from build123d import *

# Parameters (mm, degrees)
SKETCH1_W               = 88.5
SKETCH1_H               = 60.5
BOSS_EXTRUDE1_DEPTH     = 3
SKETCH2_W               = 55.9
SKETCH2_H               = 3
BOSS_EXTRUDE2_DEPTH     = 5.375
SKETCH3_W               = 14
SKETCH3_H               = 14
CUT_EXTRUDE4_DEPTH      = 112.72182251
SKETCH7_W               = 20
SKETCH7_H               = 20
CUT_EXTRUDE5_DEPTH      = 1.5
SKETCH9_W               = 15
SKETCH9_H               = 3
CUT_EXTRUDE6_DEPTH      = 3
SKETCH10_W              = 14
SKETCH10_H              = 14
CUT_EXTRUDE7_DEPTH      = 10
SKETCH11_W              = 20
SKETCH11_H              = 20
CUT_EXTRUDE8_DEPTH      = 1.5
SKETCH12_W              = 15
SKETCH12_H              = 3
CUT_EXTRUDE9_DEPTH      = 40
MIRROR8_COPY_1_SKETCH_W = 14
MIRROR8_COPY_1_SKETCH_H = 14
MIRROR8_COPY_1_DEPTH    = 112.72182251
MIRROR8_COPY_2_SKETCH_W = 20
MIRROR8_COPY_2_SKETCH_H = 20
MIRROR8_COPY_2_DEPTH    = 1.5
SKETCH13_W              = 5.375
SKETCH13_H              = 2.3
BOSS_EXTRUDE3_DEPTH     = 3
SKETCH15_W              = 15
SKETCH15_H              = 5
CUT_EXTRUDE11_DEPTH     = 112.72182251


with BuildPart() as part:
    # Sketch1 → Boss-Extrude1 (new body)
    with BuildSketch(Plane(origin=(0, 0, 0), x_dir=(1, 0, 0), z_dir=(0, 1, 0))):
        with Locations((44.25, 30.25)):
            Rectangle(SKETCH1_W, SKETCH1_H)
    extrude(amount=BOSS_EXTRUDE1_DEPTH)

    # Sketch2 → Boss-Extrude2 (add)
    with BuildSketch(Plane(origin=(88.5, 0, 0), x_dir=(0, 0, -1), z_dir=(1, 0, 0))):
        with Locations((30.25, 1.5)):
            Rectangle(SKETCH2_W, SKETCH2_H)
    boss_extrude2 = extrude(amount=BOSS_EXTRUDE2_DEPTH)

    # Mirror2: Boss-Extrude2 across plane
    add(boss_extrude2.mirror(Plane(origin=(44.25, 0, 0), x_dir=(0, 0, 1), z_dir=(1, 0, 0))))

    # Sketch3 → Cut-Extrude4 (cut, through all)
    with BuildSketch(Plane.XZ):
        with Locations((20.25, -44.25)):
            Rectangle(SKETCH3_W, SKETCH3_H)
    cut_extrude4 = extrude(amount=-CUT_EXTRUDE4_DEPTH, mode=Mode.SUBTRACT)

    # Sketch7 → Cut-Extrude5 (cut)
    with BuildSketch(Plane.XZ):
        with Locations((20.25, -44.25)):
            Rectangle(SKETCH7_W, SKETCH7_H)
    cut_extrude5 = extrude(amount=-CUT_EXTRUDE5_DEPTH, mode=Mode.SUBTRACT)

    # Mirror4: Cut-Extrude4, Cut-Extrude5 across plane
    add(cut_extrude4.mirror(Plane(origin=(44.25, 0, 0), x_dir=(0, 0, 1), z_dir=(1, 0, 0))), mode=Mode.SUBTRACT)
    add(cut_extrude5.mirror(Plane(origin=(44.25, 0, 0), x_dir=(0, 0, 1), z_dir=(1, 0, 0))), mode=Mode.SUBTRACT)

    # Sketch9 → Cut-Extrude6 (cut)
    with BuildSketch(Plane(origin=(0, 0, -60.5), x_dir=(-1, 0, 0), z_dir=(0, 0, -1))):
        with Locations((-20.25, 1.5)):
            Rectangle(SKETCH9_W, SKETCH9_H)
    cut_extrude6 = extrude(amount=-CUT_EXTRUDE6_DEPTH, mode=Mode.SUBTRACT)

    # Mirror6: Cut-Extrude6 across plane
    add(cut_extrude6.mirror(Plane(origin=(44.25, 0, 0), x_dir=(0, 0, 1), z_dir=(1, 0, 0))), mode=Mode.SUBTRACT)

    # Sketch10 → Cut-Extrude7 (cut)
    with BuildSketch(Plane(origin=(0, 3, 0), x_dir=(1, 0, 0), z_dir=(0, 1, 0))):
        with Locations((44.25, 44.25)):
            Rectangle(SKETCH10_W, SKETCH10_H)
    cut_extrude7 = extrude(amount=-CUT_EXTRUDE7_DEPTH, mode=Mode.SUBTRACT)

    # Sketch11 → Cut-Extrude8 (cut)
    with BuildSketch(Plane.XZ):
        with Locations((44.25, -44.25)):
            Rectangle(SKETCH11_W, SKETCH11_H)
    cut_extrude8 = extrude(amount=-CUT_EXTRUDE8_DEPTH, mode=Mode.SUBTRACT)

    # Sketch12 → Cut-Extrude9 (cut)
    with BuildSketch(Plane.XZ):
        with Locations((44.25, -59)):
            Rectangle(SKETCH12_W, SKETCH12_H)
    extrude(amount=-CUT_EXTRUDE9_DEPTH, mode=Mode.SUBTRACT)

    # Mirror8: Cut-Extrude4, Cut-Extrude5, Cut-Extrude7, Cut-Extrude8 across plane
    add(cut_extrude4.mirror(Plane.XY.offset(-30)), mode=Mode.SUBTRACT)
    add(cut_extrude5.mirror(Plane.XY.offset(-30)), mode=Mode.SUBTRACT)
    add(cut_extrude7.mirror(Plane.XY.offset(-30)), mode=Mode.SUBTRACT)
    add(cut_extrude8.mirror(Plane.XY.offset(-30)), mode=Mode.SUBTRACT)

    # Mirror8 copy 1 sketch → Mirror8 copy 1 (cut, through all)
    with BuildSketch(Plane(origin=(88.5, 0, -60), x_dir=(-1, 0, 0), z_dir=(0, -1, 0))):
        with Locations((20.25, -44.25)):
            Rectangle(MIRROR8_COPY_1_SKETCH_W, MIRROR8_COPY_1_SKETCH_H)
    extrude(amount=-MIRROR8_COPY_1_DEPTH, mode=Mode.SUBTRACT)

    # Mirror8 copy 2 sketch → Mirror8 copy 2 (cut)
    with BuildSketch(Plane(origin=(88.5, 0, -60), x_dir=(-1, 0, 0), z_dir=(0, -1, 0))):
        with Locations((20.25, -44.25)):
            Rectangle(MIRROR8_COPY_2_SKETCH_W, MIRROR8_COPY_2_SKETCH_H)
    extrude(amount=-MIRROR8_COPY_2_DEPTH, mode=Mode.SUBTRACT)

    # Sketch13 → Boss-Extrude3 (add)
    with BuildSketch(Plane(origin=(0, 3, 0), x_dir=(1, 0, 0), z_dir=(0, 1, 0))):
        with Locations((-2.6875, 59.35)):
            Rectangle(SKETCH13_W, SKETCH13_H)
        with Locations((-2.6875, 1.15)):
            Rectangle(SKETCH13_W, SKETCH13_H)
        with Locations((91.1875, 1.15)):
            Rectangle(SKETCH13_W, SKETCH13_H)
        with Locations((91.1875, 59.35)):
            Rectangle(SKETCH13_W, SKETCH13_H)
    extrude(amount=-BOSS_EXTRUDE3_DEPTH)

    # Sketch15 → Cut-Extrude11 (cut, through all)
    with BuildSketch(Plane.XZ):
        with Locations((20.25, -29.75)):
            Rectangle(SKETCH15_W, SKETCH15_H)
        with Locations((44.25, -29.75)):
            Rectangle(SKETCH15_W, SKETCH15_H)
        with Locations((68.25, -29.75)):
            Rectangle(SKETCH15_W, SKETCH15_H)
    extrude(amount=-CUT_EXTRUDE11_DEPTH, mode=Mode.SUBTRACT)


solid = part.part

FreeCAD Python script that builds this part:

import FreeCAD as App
import Part
import Sketcher

V = App.Vector


def add_polygon(sketch, points):
    """Adds a closed chain of lines whose ends are joined by coincident constraints."""
    first, n = sketch.GeometryCount, len(points)
    for a, b in zip(points, points[1:] + points[:1]):
        sketch.addGeometry(Part.LineSegment(App.Vector(*a, 0), App.Vector(*b, 0)), False)
    for i in range(n):
        sketch.addConstraint(Sketcher.Constraint("Coincident", first + i, 2, first + (i + 1) % n, 1))

doc = App.newDocument("Part")
body = doc.addObject("PartDesign::Body", "Body")

# Sketch on XZ plane
sketch1 = body.newObject("Sketcher::SketchObject", "Sketch")
sketch1.AttachmentSupport = (doc.getObject("XZ_Plane"), [""])
sketch1.MapMode = "FlatFace"
add_polygon(sketch1, [(0, -60), (0, 0), (88, 0), (88, -60)])  # lines 0-3
sketch1.addConstraint([
    Sketcher.Constraint("Vertical", 0),
    Sketcher.Constraint("Horizontal", 1),
    Sketcher.Constraint("Vertical", 2),
    Sketcher.Constraint("Horizontal", 3),
    Sketcher.Constraint("Coincident", 0, 2, -1, 1),
    Sketcher.Constraint("DistanceX", 1, 1, 1, 2, 88.5),
    Sketcher.Constraint("DistanceY", 0, 1, 0, 2, 60.5),
])
pad1 = body.newObject("PartDesign::Pad", "Pad")
pad1.Profile = sketch1
pad1.Length = 3
pad1.Reversed = True

# Sketch on YZ plane
sketch2 = body.newObject("Sketcher::SketchObject", "Sketch001")
sketch2.AttachmentSupport = (doc.getObject("YZ_Plane"), [""])
sketch2.MapMode = "FlatFace"
sketch2.AttachmentOffset = App.Placement(V(0, 0, 88.5), App.Rotation())
add_polygon(sketch2, [(3, -2.3), (0, -2.3), (0, -58.2), (3, -58.2)])  # lines 0-3
sketch2.addConstraint([
    Sketcher.Constraint("Horizontal", 0),
    Sketcher.Constraint("Vertical", 1),
    Sketcher.Constraint("Horizontal", 2),
    Sketcher.Constraint("Vertical", 3),
    Sketcher.Constraint("PointOnObject", 0, 2, -2),
    Sketcher.Constraint("DistanceX", 0, 2, 0, 1, 3.0),
    Sketcher.Constraint("DistanceY", 1, 2, 1, 1, 55.9),
    Sketcher.Constraint("DistanceY", 0, 2, -1, 1, 2.3),
])
pad2 = body.newObject("PartDesign::Pad", "Pad001")
pad2.Profile = sketch2
pad2.Length = 5.375
doc.recompute()

datumplane = body.newObject("PartDesign::Plane", "DatumPlane")
datumplane.AttachmentSupport = (doc.getObject("YZ_Plane"), [""])
datumplane.MapMode = "FlatFace"
datumplane.AttachmentOffset = App.Placement(V(0, 0, 44.25), App.Rotation())
mirrored = body.newObject("PartDesign::Mirrored", "Mirrored")
mirrored.Originals = [pad2]
mirrored.MirrorPlane = (datumplane, [""])
body.Tip = mirrored

# Sketch on XZ plane
sketch3 = body.newObject("Sketcher::SketchObject", "Sketch002")
sketch3.AttachmentSupport = (doc.getObject("XZ_Plane"), [""])
sketch3.MapMode = "FlatFace"
add_polygon(sketch3, [(13, -37), (13, -51), (27, -51), (27, -37)])  # lines 0-3
sketch3.addConstraint([
    Sketcher.Constraint("Vertical", 0),
    Sketcher.Constraint("Horizontal", 1),
    Sketcher.Constraint("Vertical", 2),
    Sketcher.Constraint("Horizontal", 3),
    Sketcher.Constraint("Equal", 3, 0),
    Sketcher.Constraint("DistanceX", 1, 1, 1, 2, 14.0),
    Sketcher.Constraint("DistanceX", -1, 1, 0, 2, 13.25),
    Sketcher.Constraint("DistanceY", 0, 2, -1, 1, 51.25),
])
pocket1 = body.newObject("PartDesign::Pocket", "Pocket")
pocket1.Profile = sketch3
pocket1.Type = "ThroughAll"

# Sketch on XZ plane
sketch4 = body.newObject("Sketcher::SketchObject", "Sketch003")
sketch4.AttachmentSupport = (doc.getObject("XZ_Plane"), [""])
sketch4.MapMode = "FlatFace"
add_polygon(sketch4, [(10, -34), (10, -54), (30, -54), (30, -34)])  # lines 0-3
sketch4.addConstraint([
    Sketcher.Constraint("Vertical", 0),
    Sketcher.Constraint("Horizontal", 1),
    Sketcher.Constraint("Vertical", 2),
    Sketcher.Constraint("Horizontal", 3),
    Sketcher.Constraint("Equal", 3, 0),
    Sketcher.Constraint("DistanceX", 1, 1, 1, 2, 20.0),
    Sketcher.Constraint("DistanceX", -1, 1, 0, 2, 10.25),
    Sketcher.Constraint("DistanceY", 0, 2, -1, 1, 54.25),
])
pocket2 = body.newObject("PartDesign::Pocket", "Pocket001")
pocket2.Profile = sketch4
pocket2.Length = 1.5
doc.recompute()

datumplane2 = body.newObject("PartDesign::Plane", "DatumPlane001")
datumplane2.AttachmentSupport = (doc.getObject("YZ_Plane"), [""])
datumplane2.MapMode = "FlatFace"
datumplane2.AttachmentOffset = App.Placement(V(0, 0, 44.25), App.Rotation())
mirrored2 = body.newObject("PartDesign::Mirrored", "Mirrored001")
mirrored2.Originals = [pocket1, pocket2]
mirrored2.MirrorPlane = (datumplane2, [""])
body.Tip = mirrored2

# Sketch on XY plane
sketch5 = body.newObject("Sketcher::SketchObject", "Sketch004")
sketch5.AttachmentSupport = (doc.getObject("XY_Plane"), [""])
sketch5.MapMode = "FlatFace"
sketch5.AttachmentOffset = App.Placement(V(0, 0, -60.5), App.Rotation())
add_polygon(sketch5, [(27.8, 3), (27.8, 0), (12.8, 0), (12.8, 3)])  # lines 0-3
sketch5.addConstraint([
    Sketcher.Constraint("Vertical", 0),
    Sketcher.Constraint("Horizontal", 1),
    Sketcher.Constraint("Vertical", 2),
    Sketcher.Constraint("Horizontal", 3),
    Sketcher.Constraint("PointOnObject", 0, 2, -1),
    Sketcher.Constraint("DistanceX", 1, 2, 1, 1, 15.0),
    Sketcher.Constraint("DistanceY", 0, 2, 0, 1, 3.0),
    Sketcher.Constraint("DistanceX", -1, 1, 0, 2, 27.75),
])
pocket3 = body.newObject("PartDesign::Pocket", "Pocket002")
pocket3.Profile = sketch5
pocket3.Length = 3
pocket3.Reversed = True
doc.recompute()

datumplane3 = body.newObject("PartDesign::Plane", "DatumPlane002")
datumplane3.AttachmentSupport = (doc.getObject("YZ_Plane"), [""])
datumplane3.MapMode = "FlatFace"
datumplane3.AttachmentOffset = App.Placement(V(0, 0, 44.25), App.Rotation())
mirrored3 = body.newObject("PartDesign::Mirrored", "Mirrored002")
mirrored3.Originals = [pocket3]
mirrored3.MirrorPlane = (datumplane3, [""])
body.Tip = mirrored3

# Sketch on XZ plane
sketch6 = body.newObject("Sketcher::SketchObject", "Sketch005")
sketch6.AttachmentSupport = (doc.getObject("XZ_Plane"), [""])
sketch6.MapMode = "FlatFace"
sketch6.AttachmentOffset = App.Placement(V(0, 0, -3), App.Rotation())
add_polygon(sketch6, [(37, -51), (37, -37), (51, -37), (51, -51)])  # lines 0-3
sketch6.addConstraint([
    Sketcher.Constraint("Vertical", 0),
    Sketcher.Constraint("Horizontal", 1),
    Sketcher.Constraint("Vertical", 2),
    Sketcher.Constraint("Horizontal", 3),
    Sketcher.Constraint("Equal", 3, 0),
    Sketcher.Constraint("DistanceX", 1, 1, 1, 2, 14.0),
    Sketcher.Constraint("DistanceX", -1, 1, 0, 2, 37.25),
    Sketcher.Constraint("DistanceY", 0, 2, -1, 1, 37.25),
])
pocket4 = body.newObject("PartDesign::Pocket", "Pocket003")
pocket4.Profile = sketch6
pocket4.Length = 10
pocket4.Reversed = True

# Sketch on XZ plane
sketch7 = body.newObject("Sketcher::SketchObject", "Sketch006")
sketch7.AttachmentSupport = (doc.getObject("XZ_Plane"), [""])
sketch7.MapMode = "FlatFace"
add_polygon(sketch7, [(34, -34), (34, -54), (54, -54), (54, -34)])  # lines 0-3
sketch7.addConstraint([
    Sketcher.Constraint("Vertical", 0),
    Sketcher.Constraint("Horizontal", 1),
    Sketcher.Constraint("Vertical", 2),
    Sketcher.Constraint("Horizontal", 3),
    Sketcher.Constraint("Equal", 3, 0),
    Sketcher.Constraint("DistanceX", 1, 1, 1, 2, 20.0),
    Sketcher.Constraint("DistanceX", -1, 1, 0, 2, 34.25),
    Sketcher.Constraint("DistanceY", 0, 2, -1, 1, 54.25),
])
pocket5 = body.newObject("PartDesign::Pocket", "Pocket004")
pocket5.Profile = sketch7
pocket5.Length = 1.5

# Sketch on XZ plane
sketch8 = body.newObject("Sketcher::SketchObject", "Sketch007")
sketch8.AttachmentSupport = (doc.getObject("XZ_Plane"), [""])
sketch8.MapMode = "FlatFace"
add_polygon(sketch8, [(36.8, -57.5), (36.8, -60.5), (51.8, -60.5), (51.8, -57.5)])  # lines 0-3
sketch8.addConstraint([
    Sketcher.Constraint("Vertical", 0),
    Sketcher.Constraint("Horizontal", 1),
    Sketcher.Constraint("Vertical", 2),
    Sketcher.Constraint("Horizontal", 3),
    Sketcher.Constraint("DistanceX", 1, 1, 1, 2, 15.0),
    Sketcher.Constraint("DistanceY", 0, 2, 0, 1, 3.0),
    Sketcher.Constraint("DistanceY", 0, 2, -1, 1, 60.5),
    Sketcher.Constraint("DistanceX", -1, 1, 0, 2, 36.75),
])
pocket6 = body.newObject("PartDesign::Pocket", "Pocket005")
pocket6.Profile = sketch8
pocket6.Length = 40
doc.recompute()

datumplane4 = body.newObject("PartDesign::Plane", "DatumPlane003")
datumplane4.AttachmentSupport = (doc.getObject("XY_Plane"), [""])
datumplane4.MapMode = "FlatFace"
datumplane4.AttachmentOffset = App.Placement(V(0, 0, -30), App.Rotation())
mirrored4 = body.newObject("PartDesign::Mirrored", "Mirrored003")
mirrored4.Originals = [pocket1, pocket2, pocket4, pocket5]
mirrored4.MirrorPlane = (datumplane4, [""])
body.Tip = mirrored4

# Sketch on XZ plane
sketch9 = body.newObject("Sketcher::SketchObject", "Sketch008")
sketch9.AttachmentSupport = (doc.getObject("XZ_Plane"), [""])
sketch9.MapMode = "FlatFace"
add_polygon(sketch9, [(75, -23), (75, -9), (61, -9), (61, -23)])  # lines 0-3
sketch9.addConstraint([
    Sketcher.Constraint("Vertical", 0),
    Sketcher.Constraint("Horizontal", 1),
    Sketcher.Constraint("Vertical", 2),
    Sketcher.Constraint("Horizontal", 3),
    Sketcher.Constraint("Equal", 3, 0),
    Sketcher.Constraint("DistanceX", 1, 2, 1, 1, 14.0),
    Sketcher.Constraint("DistanceX", -1, 1, 0, 2, 75.25),
    Sketcher.Constraint("DistanceY", 0, 2, -1, 1, 8.75),
])
pocket7 = body.newObject("PartDesign::Pocket", "Pocket006")
pocket7.Profile = sketch9
pocket7.Type = "ThroughAll"

# Sketch on XZ plane
sketch10 = body.newObject("Sketcher::SketchObject", "Sketch009")
sketch10.AttachmentSupport = (doc.getObject("XZ_Plane"), [""])
sketch10.MapMode = "FlatFace"
add_polygon(sketch10, [(78, -26), (78, -6), (58, -6), (58, -26)])  # lines 0-3
sketch10.addConstraint([
    Sketcher.Constraint("Vertical", 0),
    Sketcher.Constraint("Horizontal", 1),
    Sketcher.Constraint("Vertical", 2),
    Sketcher.Constraint("Horizontal", 3),
    Sketcher.Constraint("Equal", 3, 0),
    Sketcher.Constraint("DistanceX", 1, 2, 1, 1, 20.0),
    Sketcher.Constraint("DistanceX", -1, 1, 0, 2, 78.25),
    Sketcher.Constraint("DistanceY", 0, 2, -1, 1, 5.75),
])
pocket8 = body.newObject("PartDesign::Pocket", "Pocket007")
pocket8.Profile = sketch10
pocket8.Length = 1.5

# Sketch on XZ plane
sketch11 = body.newObject("Sketcher::SketchObject", "Sketch010")
sketch11.AttachmentSupport = (doc.getObject("XZ_Plane"), [""])
sketch11.MapMode = "FlatFace"
sketch11.AttachmentOffset = App.Placement(V(0, 0, -3), App.Rotation())
add_polygon(sketch11, [(-5.4, -60.5), (-5.4, -58.2), (0, -58.2), (0, -60.5)])  # lines 0-3
add_polygon(sketch11, [(-5.4, -2.3), (-5.4, 0), (0, 0), (0, -2.3)])  # lines 4-7
add_polygon(sketch11, [(88.5, -2.3), (88.5, 0), (93.9, 0), (93.9, -2.3)])  # lines 8-11
add_polygon(sketch11, [(88.5, -60.5), (88.5, -58.2), (93.9, -58.2), (93.9, -60.5)])  # lines 12-15
sketch11.addConstraint([
    Sketcher.Constraint("Vertical", 0),
    Sketcher.Constraint("Horizontal", 1),
    Sketcher.Constraint("Vertical", 2),
    Sketcher.Constraint("Horizontal", 3),
    Sketcher.Constraint("Vertical", 4),
    Sketcher.Constraint("Horizontal", 5),
    Sketcher.Constraint("Vertical", 6),
    Sketcher.Constraint("Horizontal", 7),
    Sketcher.Constraint("Vertical", 8),
    Sketcher.Constraint("Horizontal", 9),
    Sketcher.Constraint("Vertical", 10),
    Sketcher.Constraint("Horizontal", 11),
    Sketcher.Constraint("Vertical", 12),
    Sketcher.Constraint("Horizontal", 13),
    Sketcher.Constraint("Vertical", 14),
    Sketcher.Constraint("Horizontal", 15),
    Sketcher.Constraint("Coincident", 5, 2, -1, 1),
    Sketcher.Constraint("PointOnObject", 1, 2, -2),
    Sketcher.Constraint("PointOnObject", 8, 2, -1),
    Sketcher.Constraint("Horizontal", 7, 2, 10, 2),
    Sketcher.Constraint("Horizontal", 1, 2, 12, 2),
    Sketcher.Constraint("Horizontal", 3, 2, 14, 2),
    Sketcher.Constraint("Vertical", 3, 2, 4, 2),
    Sketcher.Constraint("Vertical", 11, 2, 12, 2),
    Sketcher.Constraint("Vertical", 10, 2, 13, 2),
    Sketcher.Constraint("Equal", 7, 9),
    Sketcher.Constraint("Equal", 2, 4),
    Sketcher.Constraint("DistanceY", 0, 1, 0, 2, 2.3),
    Sketcher.Constraint("DistanceY", 0, 2, -1, 1, 58.2),
    Sketcher.Constraint("DistanceX", -1, 1, 8, 2, 88.5),
    Sketcher.Constraint("DistanceX", 1, 1, 1, 2, 5.375),
])
pad3 = body.newObject("PartDesign::Pad", "Pad002")
pad3.Profile = sketch11
pad3.Length = 3

# Sketch on XZ plane
sketch12 = body.newObject("Sketcher::SketchObject", "Sketch011")
sketch12.AttachmentSupport = (doc.getObject("XZ_Plane"), [""])
sketch12.MapMode = "FlatFace"
add_polygon(sketch12, [(13, -27), (13, -32), (28, -32), (28, -27)])  # lines 0-3
add_polygon(sketch12, [(37, -27), (37, -32), (52, -32), (52, -27)])  # lines 4-7
add_polygon(sketch12, [(61, -27), (61, -32), (76, -32), (76, -27)])  # lines 8-11
sketch12.addConstraint([
    Sketcher.Constraint("Vertical", 0),
    Sketcher.Constraint("Horizontal", 1),
    Sketcher.Constraint("Vertical", 2),
    Sketcher.Constraint("Horizontal", 3),
    Sketcher.Constraint("Vertical", 4),
    Sketcher.Constraint("Horizontal", 5),
    Sketcher.Constraint("Vertical", 6),
    Sketcher.Constraint("Horizontal", 7),
    Sketcher.Constraint("Vertical", 8),
    Sketcher.Constraint("Horizontal", 9),
    Sketcher.Constraint("Vertical", 10),
    Sketcher.Constraint("Horizontal", 11),
    Sketcher.Constraint("Horizontal", 1, 2, 4, 2),
    Sketcher.Constraint("Horizontal", 3, 2, 6, 2),
    Sketcher.Constraint("Horizontal", 5, 2, 8, 2),
    Sketcher.Constraint("Horizontal", 7, 2, 10, 2),
    Sketcher.Constraint("Equal", 3, 5),
    Sketcher.Constraint("Equal", 7, 9),
    Sketcher.Constraint("DistanceX", 1, 1, 1, 2, 15.0),
    Sketcher.Constraint("DistanceY", 0, 2, 0, 1, 5.0),
    Sketcher.Constraint("DistanceX", 1, 2, 4, 2, 9.0),
    Sketcher.Constraint("DistanceX", 5, 2, 8, 2, 9.0),
    Sketcher.Constraint("DistanceX", -1, 1, 0, 2, 12.75),
    Sketcher.Constraint("DistanceY", 0, 2, -1, 1, 32.25),
])
pocket9 = body.newObject("PartDesign::Pocket", "Pocket008")
pocket9.Profile = sketch12
pocket9.Type = "ThroughAll"

doc.recompute()
